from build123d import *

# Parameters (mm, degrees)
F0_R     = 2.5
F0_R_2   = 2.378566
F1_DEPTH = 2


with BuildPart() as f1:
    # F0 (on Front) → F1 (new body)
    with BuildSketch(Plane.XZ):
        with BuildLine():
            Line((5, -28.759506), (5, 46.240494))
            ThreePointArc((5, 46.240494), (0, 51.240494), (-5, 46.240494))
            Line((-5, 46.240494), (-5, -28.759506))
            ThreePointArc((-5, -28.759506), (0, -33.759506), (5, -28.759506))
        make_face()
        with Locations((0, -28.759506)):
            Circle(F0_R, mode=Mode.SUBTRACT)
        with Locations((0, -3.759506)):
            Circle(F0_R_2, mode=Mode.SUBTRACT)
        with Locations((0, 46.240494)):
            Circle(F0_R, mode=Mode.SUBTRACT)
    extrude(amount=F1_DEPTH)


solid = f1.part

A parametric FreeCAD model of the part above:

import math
import FreeCAD as App
import Part
import Sketcher
Q = App.Units.Quantity

doc = App.newDocument("Part")
body = doc.addObject("PartDesign::Body", "Body")

sketch1 = body.newObject("Sketcher::SketchObject", "Sketch")
sketch1.AttachmentSupport = (doc.getObject("XZ_Plane"), [""])
sketch1.MapMode = "FlatFace"
sketch1.addGeometry([
    Part.LineSegment(App.Vector(5, -28.8, 0), App.Vector(5, 46.2, 0)),
    Part.ArcOfCircle(Part.Circle(App.Vector(0, 46.2, 0), App.Vector(0, 0, 1), 5), math.radians(0), math.radians(180)),
    Part.LineSegment(App.Vector(-5, 46.2, 0), App.Vector(-5, -28.8, 0)),
    Part.ArcOfCircle(Part.Circle(App.Vector(0, -28.8, 0), App.Vector(0, 0, 1), 5), math.radians(180), math.radians(360)),
    Part.Circle(App.Vector(0, -28.8, 0), App.Vector(0, 0, 1), 2.5),
    Part.Circle(App.Vector(0, -3.8, 0), App.Vector(0, 0, 1), 2.4),
    Part.Circle(App.Vector(0, 46.2, 0), App.Vector(0, 0, 1), 2.5),
], False)
sketch1.addConstraint([
    Sketcher.Constraint("Tangent", 0, 2, 1, 1),
    Sketcher.Constraint("Tangent", 1, 2, 2, 1),
    Sketcher.Constraint("Tangent", 2, 2, 3, 1),
    Sketcher.Constraint("Tangent", 3, 2, 0, 1),
    Sketcher.Constraint("Vertical", 0),
    Sketcher.Constraint("Vertical", 2),
    Sketcher.Constraint("Coincident", 4, 3, 3, 3),
    Sketcher.Constraint("Coincident", 6, 3, 1, 3),
    Sketcher.Constraint("Equal", 4, 6),
    Sketcher.Constraint("PointOnObject", 1, 3, -2),
    Sketcher.Constraint("PointOnObject", 5, 3, -2),
    Sketcher.Constraint("Diameter", 4, Q("5 mm")),
    Sketcher.Constraint("Radius", 1, Q("5 mm")),
    Sketcher.Constraint("DistanceY", 0, 1, 0, 2, Q("75 mm")),
    Sketcher.Constraint("DistanceY", 3, 3, 5, 3, Q("25 mm")),
    Sketcher.Constraint("Diameter", 5, Q("4.757132 mm")),
    Sketcher.Constraint("DistanceY", -1, 1, 1, 3, Q("46.240494 mm")),
])
pad1 = body.newObject("PartDesign::Pad", "Pad")
pad1.Profile = sketch1
pad1.Length = 2

doc.recompute()
